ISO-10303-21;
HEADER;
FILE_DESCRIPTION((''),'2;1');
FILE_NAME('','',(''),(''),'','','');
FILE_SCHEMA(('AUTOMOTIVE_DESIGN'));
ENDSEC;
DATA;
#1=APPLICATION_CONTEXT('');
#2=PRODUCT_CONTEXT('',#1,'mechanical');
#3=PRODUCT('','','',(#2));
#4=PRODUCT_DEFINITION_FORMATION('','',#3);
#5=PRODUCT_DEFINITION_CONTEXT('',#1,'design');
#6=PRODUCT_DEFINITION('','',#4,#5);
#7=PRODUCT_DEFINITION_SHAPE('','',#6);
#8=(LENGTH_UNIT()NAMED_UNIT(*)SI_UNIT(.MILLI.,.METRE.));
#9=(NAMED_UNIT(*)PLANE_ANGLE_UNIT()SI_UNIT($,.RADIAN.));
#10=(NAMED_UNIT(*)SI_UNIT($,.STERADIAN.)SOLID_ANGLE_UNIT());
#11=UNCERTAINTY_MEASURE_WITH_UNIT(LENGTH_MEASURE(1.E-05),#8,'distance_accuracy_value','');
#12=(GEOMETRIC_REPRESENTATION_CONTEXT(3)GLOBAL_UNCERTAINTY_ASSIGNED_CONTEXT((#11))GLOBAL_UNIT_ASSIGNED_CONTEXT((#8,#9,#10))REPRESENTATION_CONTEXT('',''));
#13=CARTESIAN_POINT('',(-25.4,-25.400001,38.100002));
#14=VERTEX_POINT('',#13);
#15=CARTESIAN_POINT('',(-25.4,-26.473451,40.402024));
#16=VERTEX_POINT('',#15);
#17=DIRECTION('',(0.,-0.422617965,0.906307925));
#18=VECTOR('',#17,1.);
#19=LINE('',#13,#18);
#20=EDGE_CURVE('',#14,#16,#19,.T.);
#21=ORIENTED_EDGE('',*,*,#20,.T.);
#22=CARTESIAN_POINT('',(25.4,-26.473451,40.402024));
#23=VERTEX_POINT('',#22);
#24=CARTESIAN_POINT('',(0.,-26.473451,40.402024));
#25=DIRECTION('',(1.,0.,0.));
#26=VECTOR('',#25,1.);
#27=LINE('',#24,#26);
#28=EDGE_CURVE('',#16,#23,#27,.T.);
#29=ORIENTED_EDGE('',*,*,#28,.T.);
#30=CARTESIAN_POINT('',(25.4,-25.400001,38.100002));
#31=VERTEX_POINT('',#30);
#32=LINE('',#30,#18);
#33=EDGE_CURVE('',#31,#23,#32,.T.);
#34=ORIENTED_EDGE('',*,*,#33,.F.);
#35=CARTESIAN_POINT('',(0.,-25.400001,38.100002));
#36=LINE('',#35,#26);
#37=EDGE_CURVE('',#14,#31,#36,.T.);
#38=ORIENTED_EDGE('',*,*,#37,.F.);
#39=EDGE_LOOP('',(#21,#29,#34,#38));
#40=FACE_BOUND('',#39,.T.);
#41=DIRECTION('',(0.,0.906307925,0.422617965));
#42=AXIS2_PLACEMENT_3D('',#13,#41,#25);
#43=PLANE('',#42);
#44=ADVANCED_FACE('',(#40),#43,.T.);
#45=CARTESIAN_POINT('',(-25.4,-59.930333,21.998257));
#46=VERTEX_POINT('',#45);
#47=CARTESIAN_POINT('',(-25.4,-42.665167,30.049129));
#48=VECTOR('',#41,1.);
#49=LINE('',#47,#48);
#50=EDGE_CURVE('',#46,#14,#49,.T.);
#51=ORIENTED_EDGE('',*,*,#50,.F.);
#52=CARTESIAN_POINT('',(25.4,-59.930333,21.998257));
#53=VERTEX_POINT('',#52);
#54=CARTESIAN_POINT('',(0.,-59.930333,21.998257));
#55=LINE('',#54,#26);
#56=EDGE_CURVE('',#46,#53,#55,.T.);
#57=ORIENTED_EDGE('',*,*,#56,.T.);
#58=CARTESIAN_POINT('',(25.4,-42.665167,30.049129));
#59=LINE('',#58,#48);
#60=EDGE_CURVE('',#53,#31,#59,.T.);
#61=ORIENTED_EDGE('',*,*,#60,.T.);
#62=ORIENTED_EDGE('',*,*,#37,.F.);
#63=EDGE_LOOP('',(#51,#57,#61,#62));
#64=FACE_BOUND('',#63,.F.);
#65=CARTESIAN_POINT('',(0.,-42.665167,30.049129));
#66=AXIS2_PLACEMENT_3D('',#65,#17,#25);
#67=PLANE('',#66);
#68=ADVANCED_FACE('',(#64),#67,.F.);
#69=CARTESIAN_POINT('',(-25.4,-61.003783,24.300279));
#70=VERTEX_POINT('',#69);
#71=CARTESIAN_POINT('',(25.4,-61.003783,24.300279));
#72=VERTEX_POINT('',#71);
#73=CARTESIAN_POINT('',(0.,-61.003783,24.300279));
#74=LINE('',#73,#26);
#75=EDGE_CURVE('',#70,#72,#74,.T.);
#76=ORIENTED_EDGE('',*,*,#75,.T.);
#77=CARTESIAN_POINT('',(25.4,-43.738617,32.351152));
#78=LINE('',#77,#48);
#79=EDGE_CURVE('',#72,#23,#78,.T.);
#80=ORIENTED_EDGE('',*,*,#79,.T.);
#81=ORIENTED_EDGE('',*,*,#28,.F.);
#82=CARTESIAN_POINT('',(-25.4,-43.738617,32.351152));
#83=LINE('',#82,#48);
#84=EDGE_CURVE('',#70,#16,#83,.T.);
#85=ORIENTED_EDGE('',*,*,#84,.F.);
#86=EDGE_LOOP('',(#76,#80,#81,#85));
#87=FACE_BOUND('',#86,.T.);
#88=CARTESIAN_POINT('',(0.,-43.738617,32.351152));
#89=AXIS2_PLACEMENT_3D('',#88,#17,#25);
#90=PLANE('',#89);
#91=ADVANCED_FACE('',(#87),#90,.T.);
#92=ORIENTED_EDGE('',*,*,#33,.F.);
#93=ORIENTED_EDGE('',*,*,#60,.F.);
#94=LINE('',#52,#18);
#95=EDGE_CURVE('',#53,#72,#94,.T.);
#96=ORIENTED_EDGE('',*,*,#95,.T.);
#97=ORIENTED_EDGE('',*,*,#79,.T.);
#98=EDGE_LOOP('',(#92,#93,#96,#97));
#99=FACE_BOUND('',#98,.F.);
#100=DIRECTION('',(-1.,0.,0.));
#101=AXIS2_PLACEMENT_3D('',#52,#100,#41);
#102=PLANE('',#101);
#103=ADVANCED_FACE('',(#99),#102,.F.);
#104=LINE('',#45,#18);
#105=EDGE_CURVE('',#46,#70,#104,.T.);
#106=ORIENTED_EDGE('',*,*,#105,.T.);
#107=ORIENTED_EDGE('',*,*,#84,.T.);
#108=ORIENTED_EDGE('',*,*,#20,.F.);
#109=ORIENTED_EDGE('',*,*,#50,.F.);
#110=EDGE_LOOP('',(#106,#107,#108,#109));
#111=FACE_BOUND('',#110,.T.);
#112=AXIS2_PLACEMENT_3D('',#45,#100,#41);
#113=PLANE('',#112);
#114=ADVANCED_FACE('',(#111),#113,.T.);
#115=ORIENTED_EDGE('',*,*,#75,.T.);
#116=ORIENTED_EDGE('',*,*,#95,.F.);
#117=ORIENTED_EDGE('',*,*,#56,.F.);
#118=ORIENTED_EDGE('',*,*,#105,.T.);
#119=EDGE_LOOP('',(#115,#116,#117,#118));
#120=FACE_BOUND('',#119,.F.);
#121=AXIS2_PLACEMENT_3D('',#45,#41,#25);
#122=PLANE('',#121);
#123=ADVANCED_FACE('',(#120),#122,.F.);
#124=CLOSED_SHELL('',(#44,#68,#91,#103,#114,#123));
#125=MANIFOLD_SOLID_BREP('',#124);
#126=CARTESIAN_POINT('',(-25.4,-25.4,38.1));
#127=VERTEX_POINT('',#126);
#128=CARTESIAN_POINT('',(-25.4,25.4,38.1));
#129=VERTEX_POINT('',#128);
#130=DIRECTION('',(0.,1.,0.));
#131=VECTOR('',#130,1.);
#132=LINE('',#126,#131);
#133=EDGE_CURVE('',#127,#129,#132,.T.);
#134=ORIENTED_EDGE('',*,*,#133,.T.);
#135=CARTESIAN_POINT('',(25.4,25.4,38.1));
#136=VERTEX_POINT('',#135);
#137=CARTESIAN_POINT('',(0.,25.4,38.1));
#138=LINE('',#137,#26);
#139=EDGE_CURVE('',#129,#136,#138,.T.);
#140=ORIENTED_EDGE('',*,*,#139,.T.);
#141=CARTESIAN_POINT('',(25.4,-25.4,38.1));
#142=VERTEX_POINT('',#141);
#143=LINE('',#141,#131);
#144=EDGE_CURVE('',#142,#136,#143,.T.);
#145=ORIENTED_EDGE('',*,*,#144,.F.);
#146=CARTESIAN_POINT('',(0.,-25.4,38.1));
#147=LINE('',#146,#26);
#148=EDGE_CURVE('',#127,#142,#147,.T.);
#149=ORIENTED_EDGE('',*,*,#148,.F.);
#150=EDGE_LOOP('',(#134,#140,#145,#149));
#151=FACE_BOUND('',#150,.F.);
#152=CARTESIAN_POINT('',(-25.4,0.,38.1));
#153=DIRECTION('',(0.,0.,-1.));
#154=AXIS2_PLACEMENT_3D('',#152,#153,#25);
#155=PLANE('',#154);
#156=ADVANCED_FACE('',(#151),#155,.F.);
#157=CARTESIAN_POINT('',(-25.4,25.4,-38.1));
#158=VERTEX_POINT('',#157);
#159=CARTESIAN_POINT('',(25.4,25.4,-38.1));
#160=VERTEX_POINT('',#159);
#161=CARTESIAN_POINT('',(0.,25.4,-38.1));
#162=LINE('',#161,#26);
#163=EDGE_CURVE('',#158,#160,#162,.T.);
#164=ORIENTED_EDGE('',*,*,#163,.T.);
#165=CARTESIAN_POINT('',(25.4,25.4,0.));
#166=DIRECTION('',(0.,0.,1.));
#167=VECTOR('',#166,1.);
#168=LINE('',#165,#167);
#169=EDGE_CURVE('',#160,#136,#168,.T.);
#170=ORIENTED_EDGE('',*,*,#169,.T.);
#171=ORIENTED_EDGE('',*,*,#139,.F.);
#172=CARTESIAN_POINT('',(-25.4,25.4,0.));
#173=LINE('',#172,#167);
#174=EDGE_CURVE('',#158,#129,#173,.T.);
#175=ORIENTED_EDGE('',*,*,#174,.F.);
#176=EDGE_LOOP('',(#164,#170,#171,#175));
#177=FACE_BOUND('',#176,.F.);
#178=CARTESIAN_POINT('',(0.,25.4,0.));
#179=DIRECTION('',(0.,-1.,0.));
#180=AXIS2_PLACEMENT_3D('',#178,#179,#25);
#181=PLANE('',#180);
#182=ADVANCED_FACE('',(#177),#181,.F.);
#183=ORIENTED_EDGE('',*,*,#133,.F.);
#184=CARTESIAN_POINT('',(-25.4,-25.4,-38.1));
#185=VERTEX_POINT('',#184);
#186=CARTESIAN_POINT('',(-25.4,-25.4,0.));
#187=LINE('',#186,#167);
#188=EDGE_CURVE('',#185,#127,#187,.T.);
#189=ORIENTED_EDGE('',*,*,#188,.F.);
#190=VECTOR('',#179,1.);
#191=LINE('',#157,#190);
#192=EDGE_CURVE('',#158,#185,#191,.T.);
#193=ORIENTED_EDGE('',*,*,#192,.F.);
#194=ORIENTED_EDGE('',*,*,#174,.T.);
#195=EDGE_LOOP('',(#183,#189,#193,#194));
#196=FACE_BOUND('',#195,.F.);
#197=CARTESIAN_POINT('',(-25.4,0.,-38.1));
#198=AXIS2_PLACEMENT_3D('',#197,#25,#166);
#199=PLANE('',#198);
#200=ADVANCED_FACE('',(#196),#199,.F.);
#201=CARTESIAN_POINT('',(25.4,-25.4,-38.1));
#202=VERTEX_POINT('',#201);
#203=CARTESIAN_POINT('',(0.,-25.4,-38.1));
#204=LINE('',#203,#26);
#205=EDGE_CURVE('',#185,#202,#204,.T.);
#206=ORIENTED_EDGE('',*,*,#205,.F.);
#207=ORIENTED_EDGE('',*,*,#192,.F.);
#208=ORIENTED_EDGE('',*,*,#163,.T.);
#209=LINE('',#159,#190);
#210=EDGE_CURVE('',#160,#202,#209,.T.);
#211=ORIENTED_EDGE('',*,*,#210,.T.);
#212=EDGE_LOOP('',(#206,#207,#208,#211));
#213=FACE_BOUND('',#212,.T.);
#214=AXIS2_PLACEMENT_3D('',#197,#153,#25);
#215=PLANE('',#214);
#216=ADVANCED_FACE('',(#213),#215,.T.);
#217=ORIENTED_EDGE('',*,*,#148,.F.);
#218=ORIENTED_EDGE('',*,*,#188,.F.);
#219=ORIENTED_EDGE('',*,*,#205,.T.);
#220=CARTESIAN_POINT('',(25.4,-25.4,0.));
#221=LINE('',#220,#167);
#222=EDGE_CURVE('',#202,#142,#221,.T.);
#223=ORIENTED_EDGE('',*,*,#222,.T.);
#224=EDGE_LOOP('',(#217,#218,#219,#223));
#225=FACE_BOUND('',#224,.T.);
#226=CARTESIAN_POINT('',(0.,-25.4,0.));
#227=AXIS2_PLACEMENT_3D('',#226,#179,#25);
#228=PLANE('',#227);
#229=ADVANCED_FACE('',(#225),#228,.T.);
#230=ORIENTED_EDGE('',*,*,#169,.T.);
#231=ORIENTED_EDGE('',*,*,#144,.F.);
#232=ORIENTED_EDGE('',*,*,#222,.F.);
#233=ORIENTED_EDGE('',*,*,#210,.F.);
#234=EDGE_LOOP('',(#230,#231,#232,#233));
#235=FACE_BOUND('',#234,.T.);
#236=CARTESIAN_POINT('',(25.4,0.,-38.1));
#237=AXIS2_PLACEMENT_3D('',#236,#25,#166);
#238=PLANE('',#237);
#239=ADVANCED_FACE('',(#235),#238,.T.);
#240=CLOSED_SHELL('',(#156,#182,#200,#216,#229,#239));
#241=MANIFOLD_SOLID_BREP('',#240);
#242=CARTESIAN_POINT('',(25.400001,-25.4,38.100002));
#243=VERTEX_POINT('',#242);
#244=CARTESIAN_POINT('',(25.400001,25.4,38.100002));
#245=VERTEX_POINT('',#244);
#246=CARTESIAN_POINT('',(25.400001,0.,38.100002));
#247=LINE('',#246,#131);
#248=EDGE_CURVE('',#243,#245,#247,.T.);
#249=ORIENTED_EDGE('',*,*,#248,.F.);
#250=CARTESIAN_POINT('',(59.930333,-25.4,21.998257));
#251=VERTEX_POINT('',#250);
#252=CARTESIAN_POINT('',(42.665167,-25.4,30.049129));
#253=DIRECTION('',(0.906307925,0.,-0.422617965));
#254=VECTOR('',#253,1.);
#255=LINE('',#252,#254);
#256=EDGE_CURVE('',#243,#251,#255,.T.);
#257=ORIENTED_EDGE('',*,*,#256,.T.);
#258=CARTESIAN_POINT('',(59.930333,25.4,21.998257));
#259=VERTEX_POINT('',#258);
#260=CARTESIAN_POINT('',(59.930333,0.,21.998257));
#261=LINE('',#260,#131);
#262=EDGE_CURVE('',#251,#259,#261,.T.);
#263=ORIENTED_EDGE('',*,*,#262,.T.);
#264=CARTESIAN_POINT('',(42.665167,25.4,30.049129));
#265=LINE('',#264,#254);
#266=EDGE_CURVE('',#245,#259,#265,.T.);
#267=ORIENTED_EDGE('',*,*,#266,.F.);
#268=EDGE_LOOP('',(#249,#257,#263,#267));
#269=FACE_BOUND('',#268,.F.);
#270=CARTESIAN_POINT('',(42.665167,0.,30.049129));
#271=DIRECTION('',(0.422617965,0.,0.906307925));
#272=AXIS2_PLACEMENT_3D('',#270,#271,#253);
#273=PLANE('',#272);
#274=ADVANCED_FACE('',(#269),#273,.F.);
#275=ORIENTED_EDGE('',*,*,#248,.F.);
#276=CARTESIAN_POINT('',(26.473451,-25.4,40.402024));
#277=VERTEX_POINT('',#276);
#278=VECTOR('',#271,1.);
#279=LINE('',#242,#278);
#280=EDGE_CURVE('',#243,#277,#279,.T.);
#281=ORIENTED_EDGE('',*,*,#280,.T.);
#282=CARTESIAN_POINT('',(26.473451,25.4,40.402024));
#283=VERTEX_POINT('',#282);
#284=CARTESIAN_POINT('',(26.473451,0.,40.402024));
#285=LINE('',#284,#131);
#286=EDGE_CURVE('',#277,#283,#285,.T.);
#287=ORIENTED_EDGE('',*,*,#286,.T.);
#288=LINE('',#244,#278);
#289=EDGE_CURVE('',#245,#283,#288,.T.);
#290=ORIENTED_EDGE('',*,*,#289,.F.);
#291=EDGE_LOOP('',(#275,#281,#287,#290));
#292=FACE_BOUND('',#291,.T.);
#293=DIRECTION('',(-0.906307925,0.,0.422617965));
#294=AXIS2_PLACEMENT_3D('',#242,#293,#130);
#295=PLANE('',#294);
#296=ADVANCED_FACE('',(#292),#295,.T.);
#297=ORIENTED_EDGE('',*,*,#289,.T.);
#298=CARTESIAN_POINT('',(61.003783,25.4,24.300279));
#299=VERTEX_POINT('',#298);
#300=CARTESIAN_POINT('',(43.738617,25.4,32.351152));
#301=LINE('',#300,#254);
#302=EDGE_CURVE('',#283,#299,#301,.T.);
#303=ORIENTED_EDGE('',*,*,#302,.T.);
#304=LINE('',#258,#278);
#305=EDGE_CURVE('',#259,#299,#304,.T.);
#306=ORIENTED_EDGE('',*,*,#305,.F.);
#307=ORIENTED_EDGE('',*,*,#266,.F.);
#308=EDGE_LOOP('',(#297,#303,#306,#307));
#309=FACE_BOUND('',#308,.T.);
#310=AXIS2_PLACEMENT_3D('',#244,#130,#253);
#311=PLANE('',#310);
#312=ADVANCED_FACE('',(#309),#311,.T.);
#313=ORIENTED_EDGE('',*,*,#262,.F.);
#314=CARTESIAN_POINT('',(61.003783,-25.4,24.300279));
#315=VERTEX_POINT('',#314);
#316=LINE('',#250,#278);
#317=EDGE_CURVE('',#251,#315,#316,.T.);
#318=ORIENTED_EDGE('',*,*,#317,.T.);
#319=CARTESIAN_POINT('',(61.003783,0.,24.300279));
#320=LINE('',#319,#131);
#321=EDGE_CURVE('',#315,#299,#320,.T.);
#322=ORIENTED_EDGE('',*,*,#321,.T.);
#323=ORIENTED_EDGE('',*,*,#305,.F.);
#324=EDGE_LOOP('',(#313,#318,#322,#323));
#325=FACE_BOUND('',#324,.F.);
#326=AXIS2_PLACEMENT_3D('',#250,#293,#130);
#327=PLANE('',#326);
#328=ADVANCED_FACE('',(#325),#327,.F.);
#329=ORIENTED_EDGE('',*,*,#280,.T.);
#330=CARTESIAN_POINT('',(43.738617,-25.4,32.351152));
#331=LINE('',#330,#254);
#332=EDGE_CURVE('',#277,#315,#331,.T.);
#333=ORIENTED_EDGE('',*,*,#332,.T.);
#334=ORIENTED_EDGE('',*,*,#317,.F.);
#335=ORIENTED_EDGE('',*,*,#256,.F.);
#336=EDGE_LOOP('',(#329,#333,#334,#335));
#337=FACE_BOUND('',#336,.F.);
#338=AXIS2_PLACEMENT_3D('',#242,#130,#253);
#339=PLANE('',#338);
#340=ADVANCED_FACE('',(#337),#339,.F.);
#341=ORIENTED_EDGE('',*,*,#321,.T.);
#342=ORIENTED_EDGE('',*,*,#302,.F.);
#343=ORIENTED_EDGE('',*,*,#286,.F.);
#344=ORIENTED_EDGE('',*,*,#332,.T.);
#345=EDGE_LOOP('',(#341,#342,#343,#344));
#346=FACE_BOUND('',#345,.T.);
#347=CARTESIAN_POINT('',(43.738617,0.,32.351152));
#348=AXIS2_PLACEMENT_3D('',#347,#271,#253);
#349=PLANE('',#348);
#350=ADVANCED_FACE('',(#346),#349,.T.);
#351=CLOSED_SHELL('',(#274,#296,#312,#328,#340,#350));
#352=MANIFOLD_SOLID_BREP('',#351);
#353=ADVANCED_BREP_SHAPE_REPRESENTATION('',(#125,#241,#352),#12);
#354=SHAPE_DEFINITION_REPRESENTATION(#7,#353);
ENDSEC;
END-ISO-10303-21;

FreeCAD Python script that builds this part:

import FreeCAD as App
import Part
import Sketcher
Q = App.Units.Quantity

doc = App.newDocument("Part")
params = doc.addObject("Spreadsheet::Sheet", "Params")
for row, (alias, value) in enumerate([
    ("sketch1_width", "2 in"),
    ("sketch1_height", "3 in"),
    ("pad1_length", "2 in"),
    ("sketch2_width", "2 in"),
    ("sketch2_height", "1.5 in"),
    ("pad2_length", "0.1 in"),
    ("sketch3_height", "2 in"),
    ("sketch3_width", "1.5 in"),
    ("pad3_length", "0.1 in"),
], start=1):
    params.set(f"A{row}", alias)
    params.set(f"B{row}", "=" + value)
    params.setAlias(f"B{row}", alias)

body = doc.addObject("PartDesign::Body", "Body")
body.AllowCompound = True

# Sketch on XZ plane
sketch1 = doc.addObject("Sketcher::SketchObject", "Sketch")
body.addObject(sketch1)
sketch1.AttachmentSupport = (doc.XZ_Plane, [""])
sketch1.MapMode = "FlatFace"
sketch1.addGeometry([
    Part.LineSegment(App.Vector(-25, 38, 0), App.Vector(-25, -38, 0)),
    Part.LineSegment(App.Vector(-25, -38, 0), App.Vector(25, -38, 0)),
    Part.LineSegment(App.Vector(25, -38, 0), App.Vector(25, 38, 0)),
    Part.LineSegment(App.Vector(25, 38, 0), App.Vector(-25, 38, 0)),
], False)
sketch1.addConstraint([
    Sketcher.Constraint("Coincident", 0, 2, 1, 1),
    Sketcher.Constraint("Coincident", 1, 2, 2, 1),
    Sketcher.Constraint("Coincident", 2, 2, 3, 1),
    Sketcher.Constraint("Coincident", 3, 2, 0, 1),
    Sketcher.Constraint("Vertical", 0),
    Sketcher.Constraint("Horizontal", 1),
    Sketcher.Constraint("Vertical", 2),
    Sketcher.Constraint("Horizontal", 3),
    Sketcher.Constraint("Symmetric", 0, 2, 2, 2, -1, 1),
    Sketcher.Constraint("DistanceX", 1, 1, 1, 2, Q("2 in")),
    Sketcher.Constraint("DistanceY", 0, 2, 0, 1, Q("3 in")),
])
sketch1.setExpression("Constraints[9]", "Params.sketch1_width")
sketch1.setExpression("Constraints[10]", "Params.sketch1_height")
pad1 = doc.addObject("PartDesign::Pad", "Pad")
body.addObject(pad1)
pad1.Profile = sketch1
pad1.setExpression("Length", "Params.pad1_length")
pad1.Midplane = True

# Sketch on an angled plane
sketch2 = doc.addObject("Sketcher::SketchObject", "Sketch001")
body.addObject(sketch2)
sketch2.Placement = App.Placement(App.Vector(0, -19.129744, 41.023868), App.Rotation(App.Vector(1, 0, 0), App.Vector(0, 0.906307925, 0.422617965), App.Vector(0, -0.422617965, 0.906307925), "ZXY"))
sketch2.addGeometry([
    Part.LineSegment(App.Vector(-25, -7, 0), App.Vector(-25, -45, 0)),
    Part.LineSegment(App.Vector(-25, -45, 0), App.Vector(25, -45, 0)),
    Part.LineSegment(App.Vector(25, -45, 0), App.Vector(25, -7, 0)),
    Part.LineSegment(App.Vector(25, -7, 0), App.Vector(-25, -7, 0)),
], False)
sketch2.addConstraint([
    Sketcher.Constraint("Coincident", 0, 2, 1, 1),
    Sketcher.Constraint("Coincident", 1, 2, 2, 1),
    Sketcher.Constraint("Coincident", 2, 2, 3, 1),
    Sketcher.Constraint("Coincident", 3, 2, 0, 1),
    Sketcher.Constraint("Vertical", 0),
    Sketcher.Constraint("Horizontal", 1),
    Sketcher.Constraint("Vertical", 2),
    Sketcher.Constraint("Horizontal", 3),
    Sketcher.Constraint("DistanceX", 1, 1, 1, 2, Q("2 in")),
    Sketcher.Constraint("DistanceY", 0, 2, 0, 1, Q("1.5 in")),
    Sketcher.Constraint("DistanceX", 0, 2, -1, 1, Q("1 in")),
    Sketcher.Constraint("DistanceY", 0, 2, -1, 1, 45.018462),
])
sketch2.setExpression("Constraints[8]", "Params.sketch2_width")
sketch2.setExpression("Constraints[9]", "Params.sketch2_height")
pad2 = doc.addObject("PartDesign::Pad", "Pad001")
body.addObject(pad2)
pad2.Profile = sketch2
pad2.setExpression("Length", "Params.pad2_length")
body2 = doc.addObject("PartDesign::Body", "Body001")

# Sketch on an angled plane
sketch3 = doc.addObject("Sketcher::SketchObject", "Sketch002")
body2.addObject(sketch3)
sketch3.Placement = App.Placement(App.Vector(19.129744, 0, 41.023868), App.Rotation(App.Vector(0.906307925, 0, -0.422617965), App.Vector(0, 0.999999999, 0), App.Vector(0.422617965, 0, 0.906307925), "ZXY"))
sketch3.addGeometry([
    Part.LineSegment(App.Vector(7, 25, 0), App.Vector(7, -25, 0)),
    Part.LineSegment(App.Vector(7, -25, 0), App.Vector(45, -25, 0)),
    Part.LineSegment(App.Vector(45, -25, 0), App.Vector(45, 25, 0)),
    Part.LineSegment(App.Vector(45, 25, 0), App.Vector(7, 25, 0)),
], False)
sketch3.addConstraint([
    Sketcher.Constraint("Coincident", 0, 2, 1, 1),
    Sketcher.Constraint("Coincident", 1, 2, 2, 1),
    Sketcher.Constraint("Coincident", 2, 2, 3, 1),
    Sketcher.Constraint("Coincident", 3, 2, 0, 1),
    Sketcher.Constraint("Vertical", 0),
    Sketcher.Constraint("Horizontal", 1),
    Sketcher.Constraint("Vertical", 2),
    Sketcher.Constraint("Horizontal", 3),
    Sketcher.Constraint("DistanceY", 0, 2, 0, 1, Q("2 in")),
    Sketcher.Constraint("DistanceX", 1, 1, 1, 2, Q("1.5 in")),
    Sketcher.Constraint("DistanceY", 0, 2, -1, 1, Q("1 in")),
    Sketcher.Constraint("DistanceX", -1, 1, 0, 2, 6.918462),
])
sketch3.setExpression("Constraints[8]", "Params.sketch3_height")
sketch3.setExpression("Constraints[9]", "Params.sketch3_width")
pad3 = doc.addObject("PartDesign::Pad", "Pad002")
body2.addObject(pad3)
pad3.Profile = sketch3
pad3.setExpression("Length", "Params.pad3_length")

doc.recompute()
